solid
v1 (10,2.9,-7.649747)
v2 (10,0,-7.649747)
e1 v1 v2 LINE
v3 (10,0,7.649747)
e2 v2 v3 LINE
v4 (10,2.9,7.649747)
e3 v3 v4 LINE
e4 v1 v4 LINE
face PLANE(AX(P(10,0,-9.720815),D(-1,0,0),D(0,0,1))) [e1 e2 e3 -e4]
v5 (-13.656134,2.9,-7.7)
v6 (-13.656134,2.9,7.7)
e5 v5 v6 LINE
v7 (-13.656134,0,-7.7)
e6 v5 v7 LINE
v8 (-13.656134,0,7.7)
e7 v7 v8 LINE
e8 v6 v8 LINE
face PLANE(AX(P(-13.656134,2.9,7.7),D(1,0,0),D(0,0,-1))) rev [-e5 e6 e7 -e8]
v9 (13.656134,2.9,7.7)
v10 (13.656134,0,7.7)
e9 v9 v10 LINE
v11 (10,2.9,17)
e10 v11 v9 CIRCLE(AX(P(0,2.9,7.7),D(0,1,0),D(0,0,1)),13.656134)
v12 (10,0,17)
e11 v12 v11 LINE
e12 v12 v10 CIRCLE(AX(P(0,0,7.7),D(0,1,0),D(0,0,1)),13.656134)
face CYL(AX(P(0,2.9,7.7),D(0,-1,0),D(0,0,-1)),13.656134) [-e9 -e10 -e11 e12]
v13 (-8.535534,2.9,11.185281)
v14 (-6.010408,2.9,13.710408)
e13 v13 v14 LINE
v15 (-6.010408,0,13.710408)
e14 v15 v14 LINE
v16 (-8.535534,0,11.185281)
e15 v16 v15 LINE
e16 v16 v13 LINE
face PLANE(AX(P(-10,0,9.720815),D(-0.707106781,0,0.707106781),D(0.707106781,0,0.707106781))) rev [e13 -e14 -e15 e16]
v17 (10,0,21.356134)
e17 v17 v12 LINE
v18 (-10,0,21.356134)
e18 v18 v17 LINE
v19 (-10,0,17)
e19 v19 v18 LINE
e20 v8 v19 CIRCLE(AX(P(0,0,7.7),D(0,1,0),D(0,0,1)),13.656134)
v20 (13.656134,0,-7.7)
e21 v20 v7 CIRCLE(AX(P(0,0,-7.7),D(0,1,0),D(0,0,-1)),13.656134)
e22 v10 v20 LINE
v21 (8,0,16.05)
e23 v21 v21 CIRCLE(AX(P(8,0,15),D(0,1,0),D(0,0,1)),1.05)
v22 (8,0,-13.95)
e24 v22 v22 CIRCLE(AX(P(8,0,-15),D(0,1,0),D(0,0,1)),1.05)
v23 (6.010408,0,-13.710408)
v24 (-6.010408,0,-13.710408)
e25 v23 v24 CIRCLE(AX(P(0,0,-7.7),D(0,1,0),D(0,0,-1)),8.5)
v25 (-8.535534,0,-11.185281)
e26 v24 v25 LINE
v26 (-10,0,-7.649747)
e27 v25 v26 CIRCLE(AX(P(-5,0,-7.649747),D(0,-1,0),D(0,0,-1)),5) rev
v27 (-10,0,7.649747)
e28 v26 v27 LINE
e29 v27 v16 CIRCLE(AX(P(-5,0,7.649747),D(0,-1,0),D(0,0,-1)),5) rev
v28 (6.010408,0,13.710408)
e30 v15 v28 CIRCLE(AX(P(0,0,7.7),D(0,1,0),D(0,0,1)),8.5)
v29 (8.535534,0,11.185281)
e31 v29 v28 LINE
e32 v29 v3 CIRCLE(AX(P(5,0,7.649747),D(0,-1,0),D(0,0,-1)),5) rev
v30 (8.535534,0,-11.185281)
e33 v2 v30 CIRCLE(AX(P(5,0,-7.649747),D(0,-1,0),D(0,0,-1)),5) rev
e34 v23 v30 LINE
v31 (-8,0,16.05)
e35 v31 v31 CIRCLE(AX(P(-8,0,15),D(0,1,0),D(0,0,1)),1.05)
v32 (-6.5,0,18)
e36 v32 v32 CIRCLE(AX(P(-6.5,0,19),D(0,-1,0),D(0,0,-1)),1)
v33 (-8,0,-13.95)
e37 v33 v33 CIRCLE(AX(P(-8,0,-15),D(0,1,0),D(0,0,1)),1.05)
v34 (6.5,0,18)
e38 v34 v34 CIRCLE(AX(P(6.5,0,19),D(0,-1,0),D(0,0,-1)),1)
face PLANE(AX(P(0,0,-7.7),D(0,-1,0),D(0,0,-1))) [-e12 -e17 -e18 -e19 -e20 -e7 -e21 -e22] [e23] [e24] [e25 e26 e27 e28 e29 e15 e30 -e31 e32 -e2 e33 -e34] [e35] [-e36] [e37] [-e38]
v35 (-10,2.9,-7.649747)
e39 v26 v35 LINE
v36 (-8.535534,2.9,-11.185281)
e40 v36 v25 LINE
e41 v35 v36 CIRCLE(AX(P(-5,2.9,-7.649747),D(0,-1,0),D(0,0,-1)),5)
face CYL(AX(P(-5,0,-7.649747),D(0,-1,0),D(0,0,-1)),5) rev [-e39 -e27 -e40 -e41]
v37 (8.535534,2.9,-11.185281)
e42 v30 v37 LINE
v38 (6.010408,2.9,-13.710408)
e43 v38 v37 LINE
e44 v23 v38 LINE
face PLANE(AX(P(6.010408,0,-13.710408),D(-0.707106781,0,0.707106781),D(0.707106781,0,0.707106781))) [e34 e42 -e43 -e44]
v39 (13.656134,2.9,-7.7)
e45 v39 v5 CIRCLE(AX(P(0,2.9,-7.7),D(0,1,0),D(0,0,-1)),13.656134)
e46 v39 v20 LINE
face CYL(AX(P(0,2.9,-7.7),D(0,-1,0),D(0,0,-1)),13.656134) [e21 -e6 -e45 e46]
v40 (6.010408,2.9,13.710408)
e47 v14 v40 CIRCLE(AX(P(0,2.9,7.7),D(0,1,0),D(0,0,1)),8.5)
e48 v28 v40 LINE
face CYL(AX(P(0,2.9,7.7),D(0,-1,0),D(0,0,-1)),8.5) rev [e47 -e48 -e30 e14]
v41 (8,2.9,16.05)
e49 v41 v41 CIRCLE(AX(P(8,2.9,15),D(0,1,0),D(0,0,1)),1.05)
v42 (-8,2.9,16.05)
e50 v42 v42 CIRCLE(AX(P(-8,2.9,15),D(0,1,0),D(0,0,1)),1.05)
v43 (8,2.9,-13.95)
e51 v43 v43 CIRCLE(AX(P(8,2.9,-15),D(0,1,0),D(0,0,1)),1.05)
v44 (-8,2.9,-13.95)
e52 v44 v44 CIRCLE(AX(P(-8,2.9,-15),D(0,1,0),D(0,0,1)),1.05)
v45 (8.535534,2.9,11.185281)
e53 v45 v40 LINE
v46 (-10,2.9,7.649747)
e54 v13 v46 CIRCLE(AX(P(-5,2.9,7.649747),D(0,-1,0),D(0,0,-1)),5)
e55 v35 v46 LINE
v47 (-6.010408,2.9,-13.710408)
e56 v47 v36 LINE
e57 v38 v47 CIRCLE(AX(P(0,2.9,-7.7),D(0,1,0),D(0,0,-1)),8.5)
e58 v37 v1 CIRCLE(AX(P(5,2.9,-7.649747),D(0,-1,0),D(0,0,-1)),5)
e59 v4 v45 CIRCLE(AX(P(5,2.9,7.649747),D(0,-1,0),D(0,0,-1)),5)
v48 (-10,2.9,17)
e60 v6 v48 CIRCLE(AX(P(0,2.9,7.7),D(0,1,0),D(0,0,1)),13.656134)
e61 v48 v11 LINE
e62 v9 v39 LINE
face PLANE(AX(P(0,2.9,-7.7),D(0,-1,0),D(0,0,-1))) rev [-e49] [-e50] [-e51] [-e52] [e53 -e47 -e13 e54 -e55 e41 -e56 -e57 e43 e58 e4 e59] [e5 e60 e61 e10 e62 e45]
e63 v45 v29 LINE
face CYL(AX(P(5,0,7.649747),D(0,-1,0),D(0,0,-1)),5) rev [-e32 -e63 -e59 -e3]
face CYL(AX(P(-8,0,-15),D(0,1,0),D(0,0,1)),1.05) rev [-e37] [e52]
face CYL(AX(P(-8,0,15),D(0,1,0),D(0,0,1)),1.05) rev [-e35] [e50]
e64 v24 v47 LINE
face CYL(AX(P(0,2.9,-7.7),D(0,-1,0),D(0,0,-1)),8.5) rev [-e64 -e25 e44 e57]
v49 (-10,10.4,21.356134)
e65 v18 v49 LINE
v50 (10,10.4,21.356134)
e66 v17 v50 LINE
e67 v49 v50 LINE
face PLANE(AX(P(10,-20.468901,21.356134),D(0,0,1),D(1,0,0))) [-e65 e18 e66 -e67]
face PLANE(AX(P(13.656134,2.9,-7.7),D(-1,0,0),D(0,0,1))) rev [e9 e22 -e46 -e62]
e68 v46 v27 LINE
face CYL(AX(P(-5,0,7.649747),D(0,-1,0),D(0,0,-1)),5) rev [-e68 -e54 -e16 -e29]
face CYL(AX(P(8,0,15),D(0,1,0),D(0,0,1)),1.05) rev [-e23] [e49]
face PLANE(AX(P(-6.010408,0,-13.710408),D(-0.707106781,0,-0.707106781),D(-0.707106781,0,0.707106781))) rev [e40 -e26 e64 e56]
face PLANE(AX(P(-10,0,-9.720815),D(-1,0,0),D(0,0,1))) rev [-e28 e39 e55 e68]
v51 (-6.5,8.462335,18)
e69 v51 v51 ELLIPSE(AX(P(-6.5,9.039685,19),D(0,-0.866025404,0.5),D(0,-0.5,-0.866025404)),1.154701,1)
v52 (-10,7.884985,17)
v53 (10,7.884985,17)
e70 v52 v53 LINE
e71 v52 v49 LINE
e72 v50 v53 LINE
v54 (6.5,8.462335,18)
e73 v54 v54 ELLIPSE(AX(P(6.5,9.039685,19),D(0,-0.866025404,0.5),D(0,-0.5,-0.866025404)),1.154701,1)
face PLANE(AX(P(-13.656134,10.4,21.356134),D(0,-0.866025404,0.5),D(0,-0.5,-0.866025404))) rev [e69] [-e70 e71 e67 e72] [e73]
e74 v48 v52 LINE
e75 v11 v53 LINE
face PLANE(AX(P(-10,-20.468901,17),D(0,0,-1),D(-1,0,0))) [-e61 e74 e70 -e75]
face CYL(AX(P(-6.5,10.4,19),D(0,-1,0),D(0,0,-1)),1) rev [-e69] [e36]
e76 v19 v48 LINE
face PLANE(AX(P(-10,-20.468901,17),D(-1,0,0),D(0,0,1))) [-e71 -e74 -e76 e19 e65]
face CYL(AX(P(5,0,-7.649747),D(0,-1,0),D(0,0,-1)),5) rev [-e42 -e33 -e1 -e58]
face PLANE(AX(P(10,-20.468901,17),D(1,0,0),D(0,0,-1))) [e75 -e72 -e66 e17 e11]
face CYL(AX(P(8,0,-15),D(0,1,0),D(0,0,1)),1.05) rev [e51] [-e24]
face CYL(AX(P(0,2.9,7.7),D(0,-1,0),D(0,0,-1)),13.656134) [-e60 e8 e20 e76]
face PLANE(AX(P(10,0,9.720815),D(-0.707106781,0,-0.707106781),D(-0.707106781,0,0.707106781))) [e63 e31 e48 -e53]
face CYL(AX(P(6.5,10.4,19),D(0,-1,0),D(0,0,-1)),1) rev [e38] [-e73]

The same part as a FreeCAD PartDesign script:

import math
import FreeCAD as App
import Part
import Sketcher

V = App.Vector
Q = App.Units.Quantity


def edges_at(feature, points):
    """Names of the edges that pass closest to the given points."""
    edges = feature.Shape.Edges
    near = lambda p: min(range(len(edges)), key=lambda i: edges[i].distToShape(Part.Vertex(*p))[0])
    return sorted({f"Edge{near(p) + 1}" for p in points})


def add_polygon(sketch, points):
    """Adds a closed chain of lines whose ends are joined by coincident constraints."""
    first, n = sketch.GeometryCount, len(points)
    for a, b in zip(points, points[1:] + points[:1]):
        sketch.addGeometry(Part.LineSegment(App.Vector(*a, 0), App.Vector(*b, 0)), False)
    for i in range(n):
        sketch.addConstraint(Sketcher.Constraint("Coincident", first + i, 2, first + (i + 1) % n, 1))

doc = App.newDocument("Part")
body = doc.addObject("PartDesign::Body", "Body")

# Sketch on XZ plane
sketch1 = body.newObject("Sketcher::SketchObject", "Sketch")
sketch1.AttachmentSupport = (doc.getObject("XZ_Plane"), [""])
sketch1.MapMode = "FlatFace"
sketch1.addGeometry([
    Part.LineSegment(V(-13.656134, -7.7, 0), V(-13.656134, 7.7, 0)),  # 0
    Part.ArcOfCircle(Part.Circle(V(0, 7.7, 0), V(0, 0, 1), 13.656134), math.radians(0), math.radians(180)),  # 1
    Part.LineSegment(V(13.656134, 7.7, 0), V(13.656134, -7.7, 0)),  # 2
    Part.ArcOfCircle(Part.Circle(V(0, -7.7, 0), V(0, 0, 1), 13.656134), math.radians(180), math.radians(360)),  # 3
    Part.ArcOfCircle(Part.Circle(V(0, -7.7, 0), V(0, 0, 1), 8.5), math.radians(180), math.radians(360)),  # 4
    Part.LineSegment(V(8.5, -7.7, 0), V(8.5, 7.7, 0)),  # 5
    Part.ArcOfCircle(Part.Circle(V(0, 7.7, 0), V(0, 0, 1), 8.5), math.radians(0), math.radians(180)),  # 6
    Part.LineSegment(V(-8.5, 7.7, 0), V(-8.5, -7.7, 0)),  # 7
], False)
sketch1.addConstraint([
    Sketcher.Constraint("Tangent", 0, 2, 1, 2),
    Sketcher.Constraint("Tangent", 1, 1, 2, 1),
    Sketcher.Constraint("Tangent", 2, 2, 3, 2),
    Sketcher.Constraint("Tangent", 3, 1, 0, 1),
    Sketcher.Constraint("Tangent", 4, 2, 5, 1),
    Sketcher.Constraint("Tangent", 5, 2, 6, 1),
    Sketcher.Constraint("Tangent", 6, 2, 7, 1),
    Sketcher.Constraint("Tangent", 7, 2, 4, 1),
    Sketcher.Constraint("Vertical", 0),
    Sketcher.Constraint("Vertical", 2),
    Sketcher.Constraint("Vertical", 5),
    Sketcher.Constraint("Vertical", 7),
    Sketcher.Constraint("Coincident", 4, 3, 3, 3),
    Sketcher.Constraint("Symmetric", 1, 3, 3, 3, -1, 1),
    Sketcher.Constraint("Horizontal", 6, 3, 0, 2),
    Sketcher.Constraint("Radius", 4, Q("8.5 mm")),
    Sketcher.Constraint("DistanceY", 0, 1, 0, 2, Q("15.4 mm")),
    Sketcher.Constraint("Radius", 1, Q("13.656134 mm")),
])
pad1 = body.newObject("PartDesign::Pad", "Pad")
pad1.Profile = sketch1
pad1.Length = 2.9
pad1.Reversed = True

# Sketch on XZ plane
sketch2 = body.newObject("Sketcher::SketchObject", "Sketch001")
sketch2.AttachmentSupport = (doc.getObject("XZ_Plane"), [""])
sketch2.MapMode = "FlatFace"
sketch2.AttachmentOffset = App.Placement(V(0, 0, -2.9), App.Rotation())
sketch2.addGeometry([
    Part.Circle(V(-8, -15, 0), V(0, 0, 1), 1.05),
    Part.Circle(V(8, -15, 0), V(0, 0, 1), 1.05),
    Part.Circle(V(8, 15, 0), V(0, 0, 1), 1.05),
    Part.Circle(V(-8, 15, 0), V(0, 0, 1), 1.05),
], False)
sketch2.addConstraint([
    Sketcher.Constraint("Equal", 0, 1),
    Sketcher.Constraint("Equal", 1, 2),
    Sketcher.Constraint("Equal", 2, 3),
    Sketcher.Constraint("Symmetric", 0, 3, 2, 3, -1, 1),
    Sketcher.Constraint("Symmetric", 1, 3, 3, 3, -1, 1),
    Sketcher.Constraint("Symmetric", 0, 3, 1, 3, -2),
    Sketcher.Constraint("Diameter", 0, Q("2.1 mm")),
    Sketcher.Constraint("DistanceX", 0, 3, -1, 1, Q("8 mm")),
    Sketcher.Constraint("DistanceY", 0, 3, -1, 1, Q("15 mm")),
])
pocket1 = body.newObject("PartDesign::Pocket", "Pocket")
pocket1.Profile = sketch2
pocket1.Type = "ThroughAll"
pocket1.Reversed = True

# Sketch on XZ plane
sketch3 = body.newObject("Sketcher::SketchObject", "Sketch002")
sketch3.AttachmentSupport = (doc.getObject("XZ_Plane"), [""])
sketch3.MapMode = "FlatFace"
sketch3.AttachmentOffset = App.Placement(V(0, 0, -2.9), App.Rotation())
add_polygon(sketch3, [(-10, 17), (-10, 21.356134), (10, 21.356134), (10, 17)])  # lines 0-3
sketch3.addConstraint([
    Sketcher.Constraint("Vertical", 0),
    Sketcher.Constraint("Horizontal", 1),
    Sketcher.Constraint("Vertical", 2),
    Sketcher.Constraint("Horizontal", 3),
    Sketcher.Constraint("DistanceX", 1, 1, 1, 2, Q("20 mm")),
    Sketcher.Constraint("DistanceX", 0, 2, -1, 1, Q("10 mm")),
    Sketcher.Constraint("DistanceY", -1, 1, 2, 2, Q("17 mm")),
    Sketcher.Constraint("DistanceY", 0, 1, 0, 2, Q("4.356134 mm")),
])
pad2 = body.newObject("PartDesign::Pad", "Pad001")
pad2.Profile = sketch3
pad2.Type = "TwoLengths"
pad2.Length = 11.5
pad2.Length2 = 2.9
pad2.Reversed = True

# Sketch on YZ plane
sketch4 = body.newObject("Sketcher::SketchObject", "Sketch003")
sketch4.AttachmentSupport = (doc.getObject("YZ_Plane"), [""])
sketch4.MapMode = "FlatFace"
sketch4.AttachmentOffset = App.Placement(V(0, 0, 10), App.Rotation())
add_polygon(sketch4, [(14.4, 21.356134), (10.4, 21.356134), (7.884985, 17), (14.4, 17)])  # lines 0-3
sketch4.addConstraint([
    Sketcher.Constraint("Horizontal", 0),
    Sketcher.Constraint("Horizontal", 2),
    Sketcher.Constraint("Vertical", 3),
    Sketcher.Constraint("DistanceX", 0, 2, 0, 1, Q("4 mm")),
    Sketcher.Constraint("Angle", 1, Q("-120 deg")),
    Sketcher.Constraint("DistanceY", -1, 1, 1, 2, Q("17 mm")),
    Sketcher.Constraint("DistanceX", -1, 1, 0, 2, Q("10.4 mm")),
    Sketcher.Constraint("Distance", 1, Q("5.03003 mm")),
])
pocket2 = body.newObject("PartDesign::Pocket", "Pocket001")
pocket2.Profile = sketch4
pocket2.Type = "ThroughAll"

# Sketch on XZ plane
sketch5 = body.newObject("Sketcher::SketchObject", "Sketch004")
sketch5.AttachmentSupport = (doc.getObject("XZ_Plane"), [""])
sketch5.MapMode = "FlatFace"
sketch5.addGeometry([
    Part.Circle(V(6.5, 19, 0), V(0, 0, 1), 1),
    Part.Circle(V(-6.5, 19, 0), V(0, 0, 1), 1),
], False)
sketch5.addConstraint([
    Sketcher.Constraint("Equal", 0, 1),
    Sketcher.Constraint("Symmetric", 0, 3, 1, 3, -2),
    Sketcher.Constraint("Diameter", 0, Q("2 mm")),
    Sketcher.Constraint("DistanceY", -1, 1, 0, 3, Q("19 mm")),
    Sketcher.Constraint("DistanceX", 1, 3, 0, 3, Q("13 mm")),
])
pocket3 = body.newObject("PartDesign::Pocket", "Pocket002")
pocket3.Profile = sketch5
pocket3.Type = "ThroughAll"

# Sketch on XZ plane
sketch6 = body.newObject("Sketcher::SketchObject", "Sketch005")
sketch6.AttachmentSupport = (doc.getObject("XZ_Plane"), [""])
sketch6.MapMode = "FlatFace"
sketch6.AttachmentOffset = App.Placement(V(0, 0, -2.9), App.Rotation())
add_polygon(sketch6, [(-10, -9.720815), (-10, 9.720815), (-6.010408, 13.710408), (-6.010408, -13.710408)])  # lines 0-3
sketch6.addConstraint([
    Sketcher.Constraint("Vertical", 0),
    Sketcher.Constraint("Vertical", 2),
    Sketcher.Constraint("Perpendicular", 1, 3),
    Sketcher.Constraint("Equal", 1, 3),
    Sketcher.Constraint("DistanceX", 0, 2, -1, 1, Q("10 mm")),
    Sketcher.Constraint("DistanceY", 0, 1, 0, 2, Q("19.441631 mm")),
    Sketcher.Constraint("DistanceY", 2, 2, 2, 1, Q("27.420815 mm")),
    Sketcher.Constraint("DistanceY", -1, 1, 0, 2, Q("9.720815 mm")),
])
pocket4 = body.newObject("PartDesign::Pocket", "Pocket003")
pocket4.Profile = sketch6
pocket4.Type = "ThroughAll"
pocket4.Reversed = True
doc.recompute()

fillet = body.newObject("PartDesign::Fillet", "Fillet")
fillet.Base = (pocket4, edges_at(pocket4, [(-10, 1.45, -9.721), (-10, 1.45, 9.721)]))
fillet.Radius = 5
doc.recompute()

mirrored = body.newObject("PartDesign::Mirrored", "Mirrored")
mirrored.Originals = [pocket4]
mirrored.MirrorPlane = (doc.getObject("YZ_Plane"), [""])
body.Tip = mirrored
doc.recompute()

fillet2 = body.newObject("PartDesign::Fillet", "Fillet001")
fillet2.Base = (mirrored, edges_at(mirrored, [(10, 1.45, -9.721), (10, 1.45, 9.721)]))
fillet2.Radius = 5

doc.recompute()
